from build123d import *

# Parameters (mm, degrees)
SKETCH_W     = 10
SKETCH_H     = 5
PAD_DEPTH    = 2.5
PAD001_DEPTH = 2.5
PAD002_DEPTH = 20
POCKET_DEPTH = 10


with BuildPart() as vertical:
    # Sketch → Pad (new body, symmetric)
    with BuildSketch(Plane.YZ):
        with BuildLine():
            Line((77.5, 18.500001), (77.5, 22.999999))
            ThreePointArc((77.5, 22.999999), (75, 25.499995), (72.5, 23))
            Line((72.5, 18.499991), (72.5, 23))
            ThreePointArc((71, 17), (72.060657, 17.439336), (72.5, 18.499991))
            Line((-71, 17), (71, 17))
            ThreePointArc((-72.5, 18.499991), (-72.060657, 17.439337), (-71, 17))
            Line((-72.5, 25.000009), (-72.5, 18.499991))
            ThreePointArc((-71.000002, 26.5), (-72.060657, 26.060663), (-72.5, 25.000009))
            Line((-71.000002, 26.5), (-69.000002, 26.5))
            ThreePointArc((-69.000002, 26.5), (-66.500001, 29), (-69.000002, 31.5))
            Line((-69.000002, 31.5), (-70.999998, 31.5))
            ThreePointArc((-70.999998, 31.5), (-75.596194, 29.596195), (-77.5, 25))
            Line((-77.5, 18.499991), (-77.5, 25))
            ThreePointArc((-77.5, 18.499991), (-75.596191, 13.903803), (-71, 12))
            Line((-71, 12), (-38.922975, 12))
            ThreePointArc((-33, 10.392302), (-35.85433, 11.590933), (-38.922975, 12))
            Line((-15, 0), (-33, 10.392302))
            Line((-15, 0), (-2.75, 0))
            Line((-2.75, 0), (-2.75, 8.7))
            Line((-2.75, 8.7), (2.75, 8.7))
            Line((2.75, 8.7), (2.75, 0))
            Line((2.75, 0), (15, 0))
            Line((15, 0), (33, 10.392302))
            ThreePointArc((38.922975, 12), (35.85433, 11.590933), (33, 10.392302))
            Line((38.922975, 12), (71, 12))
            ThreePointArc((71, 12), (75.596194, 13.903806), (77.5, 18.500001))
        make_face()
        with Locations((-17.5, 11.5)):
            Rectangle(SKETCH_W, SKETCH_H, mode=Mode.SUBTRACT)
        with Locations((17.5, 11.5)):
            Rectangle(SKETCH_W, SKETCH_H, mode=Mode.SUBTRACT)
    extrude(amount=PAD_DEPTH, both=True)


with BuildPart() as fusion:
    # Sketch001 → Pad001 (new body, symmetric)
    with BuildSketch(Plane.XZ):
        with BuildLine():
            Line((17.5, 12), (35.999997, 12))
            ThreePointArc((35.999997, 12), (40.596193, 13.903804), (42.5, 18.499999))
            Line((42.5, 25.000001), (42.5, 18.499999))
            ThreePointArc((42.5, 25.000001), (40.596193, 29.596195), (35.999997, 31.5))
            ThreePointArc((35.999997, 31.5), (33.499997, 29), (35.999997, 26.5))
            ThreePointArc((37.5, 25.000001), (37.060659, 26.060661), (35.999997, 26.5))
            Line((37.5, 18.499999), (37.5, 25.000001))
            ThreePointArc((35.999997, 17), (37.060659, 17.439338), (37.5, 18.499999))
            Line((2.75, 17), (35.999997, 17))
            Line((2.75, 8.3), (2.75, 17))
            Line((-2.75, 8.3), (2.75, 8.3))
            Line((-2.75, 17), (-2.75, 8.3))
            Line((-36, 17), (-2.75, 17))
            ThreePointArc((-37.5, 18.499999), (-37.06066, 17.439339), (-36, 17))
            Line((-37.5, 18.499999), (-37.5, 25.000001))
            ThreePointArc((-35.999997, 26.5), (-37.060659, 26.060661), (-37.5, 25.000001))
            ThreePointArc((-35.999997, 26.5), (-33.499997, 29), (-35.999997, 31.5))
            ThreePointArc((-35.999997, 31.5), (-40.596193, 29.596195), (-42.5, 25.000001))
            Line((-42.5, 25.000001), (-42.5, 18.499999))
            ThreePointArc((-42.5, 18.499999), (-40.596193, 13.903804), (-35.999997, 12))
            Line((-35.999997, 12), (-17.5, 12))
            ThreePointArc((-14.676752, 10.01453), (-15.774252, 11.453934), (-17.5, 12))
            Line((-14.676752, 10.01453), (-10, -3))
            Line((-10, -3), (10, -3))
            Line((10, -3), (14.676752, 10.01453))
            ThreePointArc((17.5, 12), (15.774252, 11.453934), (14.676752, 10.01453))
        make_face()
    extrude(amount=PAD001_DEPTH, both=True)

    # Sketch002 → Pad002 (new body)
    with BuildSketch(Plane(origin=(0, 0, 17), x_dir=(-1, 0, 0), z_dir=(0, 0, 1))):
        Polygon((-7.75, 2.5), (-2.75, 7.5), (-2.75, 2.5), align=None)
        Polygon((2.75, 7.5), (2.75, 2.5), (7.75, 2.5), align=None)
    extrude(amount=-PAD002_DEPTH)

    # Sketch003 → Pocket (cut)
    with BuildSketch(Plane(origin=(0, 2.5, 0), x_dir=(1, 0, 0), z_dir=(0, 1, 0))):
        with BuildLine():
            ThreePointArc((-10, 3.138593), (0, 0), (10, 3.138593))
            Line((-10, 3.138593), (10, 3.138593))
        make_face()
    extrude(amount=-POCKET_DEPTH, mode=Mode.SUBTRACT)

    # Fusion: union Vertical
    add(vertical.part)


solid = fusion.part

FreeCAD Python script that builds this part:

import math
import FreeCAD as App
import Part
import Sketcher

V = App.Vector
Q = App.Units.Quantity


def add_polygon(sketch, points):
    """Adds a closed chain of lines whose ends are joined by coincident constraints."""
    first, n = sketch.GeometryCount, len(points)
    for a, b in zip(points, points[1:] + points[:1]):
        sketch.addGeometry(Part.LineSegment(App.Vector(*a, 0), App.Vector(*b, 0)), False)
    for i in range(n):
        sketch.addConstraint(Sketcher.Constraint("Coincident", first + i, 2, first + (i + 1) % n, 1))

doc = App.newDocument("Part")
params = doc.addObject("Spreadsheet::Sheet", "Params")
for row, (alias, value) in enumerate([
    ("sketch1_radius", "2.5 mm"),
    ("sketch1_radius2", "1.499999 mm"),
    ("sketch1_width", "142 mm"),
    ("sketch1_width2", "2 mm"),
    ("sketch1_width3", "10 mm"),
    ("pad1_length", "5 mm"),
    ("sketch2_radius", "3.000002 mm"),
    ("sketch2_radius2", "6.499999 mm"),
    ("sketch2_radius3", "2.5 mm"),
    ("sketch2_width", "20 mm"),
    ("sketch2_width2", "5.5 mm"),
    ("pad2_length", "5 mm"),
    ("sketch3_width", "5 mm"),
    ("pad3_length", "20 mm"),
    ("sketch4_radius", "17.500002 mm"),
    ("sketch4_width", "20 mm"),
    ("pocket1_length", "10 mm"),
], start=1):
    params.set(f"A{row}", alias)
    params.set(f"B{row}", "=" + value)
    params.setAlias(f"B{row}", alias)

body = doc.addObject("PartDesign::Body", "Body")

# Sketch on YZ plane
sketch1 = body.newObject("Sketcher::SketchObject", "Sketch")
sketch1.AttachmentSupport = (doc.getObject("YZ_Plane"), [""])
sketch1.MapMode = "FlatFace"
sketch1.addGeometry(Part.LineSegment(V(77.5, 18.5, 0), V(77.5, 23, 0)), False)  # 0
sketch1.addGeometry(Part.ArcOfCircle(Part.Circle(V(75, 23, 0), V(0, 0, 1), 2.5), math.radians(0), math.radians(180)), False)  # 1
sketch1.addGeometry(Part.LineSegment(V(72.5, 23, 0), V(72.5, 18.5, 0)), False)  # 2
sketch1.addGeometry(Part.ArcOfCircle(Part.Circle(V(71, 18.5, 0), V(0, 0, 1), 1.5), math.radians(-90), math.radians(0)), False)  # 3
sketch1.addGeometry(Part.LineSegment(V(71, 17, 0), V(-71, 17, 0)), False)  # 4
sketch1.addGeometry(Part.ArcOfCircle(Part.Circle(V(-71, 18.5, 0), V(0, 0, 1), 1.5), math.radians(-180), math.radians(-90)), False)  # 5
sketch1.addGeometry(Part.LineSegment(V(-72.5, 18.5, 0), V(-72.5, 25, 0)), False)  # 6
sketch1.addGeometry(Part.ArcOfCircle(Part.Circle(V(-71, 25, 0), V(0, 0, 1), 1.5), math.radians(90), math.radians(180)), False)  # 7
sketch1.addGeometry(Part.LineSegment(V(-71, 26.5, 0), V(-69, 26.5, 0)), False)  # 8
sketch1.addGeometry(Part.ArcOfCircle(Part.Circle(V(-69, 29, 0), V(0, 0, 1), 2.5), math.radians(-90), math.radians(90)), False)  # 9
sketch1.addGeometry(Part.LineSegment(V(-69, 31.5, 0), V(-71, 31.5, 0)), False)  # 10
sketch1.addGeometry(Part.ArcOfCircle(Part.Circle(V(-71, 25, 0), V(0, 0, 1), 6.5), math.radians(90), math.radians(180)), False)  # 11
sketch1.addGeometry(Part.LineSegment(V(-77.5, 25, 0), V(-77.5, 18.5, 0)), False)  # 12
sketch1.addGeometry(Part.ArcOfCircle(Part.Circle(V(-71, 18.5, 0), V(0, 0, 1), 6.5), math.radians(-180), math.radians(-90)), False)  # 13
sketch1.addGeometry(Part.LineSegment(V(-71, 12, 0), V(-38.9, 12, 0)), False)  # 14
sketch1.addGeometry(Part.ArcOfCircle(Part.Circle(V(-38.9, 0.3, 0), V(0, 0, 1), 11.7), math.radians(60), math.radians(90)), False)  # 15
sketch1.addGeometry(Part.LineSegment(V(-33, 10.4, 0), V(-15, 0, 0)), False)  # 16
sketch1.addGeometry(Part.LineSegment(V(-15, 0, 0), V(-2.8, 0, 0)), False)  # 17
sketch1.addGeometry(Part.LineSegment(V(-2.8, 0, 0), V(-2.8, 8.7, 0)), False)  # 18
sketch1.addGeometry(Part.LineSegment(V(-2.8, 8.7, 0), V(2.8, 8.7, 0)), False)  # 19
sketch1.addGeometry(Part.LineSegment(V(2.8, 8.7, 0), V(2.8, 0, 0)), False)  # 20
sketch1.addGeometry(Part.LineSegment(V(2.8, 0, 0), V(15, 0, 0)), False)  # 21
sketch1.addGeometry(Part.LineSegment(V(15, 0, 0), V(33, 10.4, 0)), False)  # 22
sketch1.addGeometry(Part.ArcOfCircle(Part.Circle(V(38.9, 0.3, 0), V(0, 0, 1), 11.7), math.radians(90), math.radians(120)), False)  # 23
sketch1.addGeometry(Part.LineSegment(V(38.9, 12, 0), V(71, 12, 0)), False)  # 24
sketch1.addGeometry(Part.ArcOfCircle(Part.Circle(V(71, 18.5, 0), V(0, 0, 1), 6.5), math.radians(-90), math.radians(0)), False)  # 25
add_polygon(sketch1, [(-12.5, 9), (-22.5, 9), (-22.5, 14), (-12.5, 14)])  # lines 26-29
add_polygon(sketch1, [(22.5, 9), (12.5, 9), (12.5, 14), (22.5, 14)])  # lines 30-33
sketch1.addConstraint([
    Sketcher.Constraint("Tangent", 0, 2, 1, 1),
    Sketcher.Constraint("Coincident", 1, 2, 2, 1),
    Sketcher.Constraint("Coincident", 2, 2, 3, 2),
    Sketcher.Constraint("Tangent", 3, 1, 4, 1),
    Sketcher.Constraint("Tangent", 4, 2, 5, 2),
    Sketcher.Constraint("Coincident", 5, 1, 6, 1),
    Sketcher.Constraint("Coincident", 6, 2, 7, 2),
    Sketcher.Constraint("Tangent", 7, 1, 8, 1),
    Sketcher.Constraint("Tangent", 8, 2, 9, 1),
    Sketcher.Constraint("Tangent", 9, 2, 10, 1),
    Sketcher.Constraint("Tangent", 10, 2, 11, 1),
    Sketcher.Constraint("Tangent", 11, 2, 12, 1),
    Sketcher.Constraint("Tangent", 12, 2, 13, 1),
    Sketcher.Constraint("Tangent", 13, 2, 14, 1),
    Sketcher.Constraint("Tangent", 14, 2, 15, 2),
    Sketcher.Constraint("Coincident", 15, 1, 16, 1),
    Sketcher.Constraint("Coincident", 16, 2, 17, 1),
    Sketcher.Constraint("Coincident", 17, 2, 18, 1),
    Sketcher.Constraint("Coincident", 18, 2, 19, 1),
    Sketcher.Constraint("Coincident", 19, 2, 20, 1),
    Sketcher.Constraint("Coincident", 20, 2, 21, 1),
    Sketcher.Constraint("Coincident", 21, 2, 22, 1),
    Sketcher.Constraint("Coincident", 22, 2, 23, 2),
    Sketcher.Constraint("Tangent", 23, 1, 24, 1),
    Sketcher.Constraint("Tangent", 24, 2, 25, 1),
    Sketcher.Constraint("Tangent", 25, 2, 0, 1),
    Sketcher.Constraint("Vertical", 0),
    Sketcher.Constraint("Vertical", 2),
    Sketcher.Constraint("Horizontal", 4),
    Sketcher.Constraint("Vertical", 6),
    Sketcher.Constraint("Horizontal", 8),
    Sketcher.Constraint("Horizontal", 10),
    Sketcher.Constraint("Vertical", 12),
    Sketcher.Constraint("Horizontal", 14),
    Sketcher.Constraint("Horizontal", 17),
    Sketcher.Constraint("Vertical", 18),
    Sketcher.Constraint("Horizontal", 19),
    Sketcher.Constraint("Vertical", 20),
    Sketcher.Constraint("Horizontal", 21),
    Sketcher.Constraint("Horizontal", 24),
    Sketcher.Constraint("Horizontal", 26),
    Sketcher.Constraint("Vertical", 27),
    Sketcher.Constraint("Horizontal", 28),
    Sketcher.Constraint("Vertical", 29),
    Sketcher.Constraint("Horizontal", 30),
    Sketcher.Constraint("Vertical", 31),
    Sketcher.Constraint("Horizontal", 32),
    Sketcher.Constraint("Vertical", 33),
    Sketcher.Constraint("Coincident", 11, 3, 7, 3),
    Sketcher.Constraint("Coincident", 13, 3, 5, 3),
    Sketcher.Constraint("Coincident", 25, 3, 3, 3),
    Sketcher.Constraint("Equal", 3, 5),
    Sketcher.Constraint("Equal", 5, 7),
    Sketcher.Constraint("Equal", 1, 9),
    Sketcher.Constraint("Equal", 15, 23),
    Sketcher.Constraint("Symmetric", 17, 2, 20, 2, -1, 1),
    Sketcher.Constraint("Symmetric", 2, 2, 5, 1, -2),
    Sketcher.Constraint("Symmetric", 16, 2, 21, 2, -2),
    Sketcher.Constraint("Symmetric", 15, 1, 22, 2, -2),
    Sketcher.Constraint("Symmetric", 29, 2, 30, 2, -2),
    Sketcher.Constraint("Symmetric", 27, 2, 32, 2, -2),
    Sketcher.Constraint("Horizontal", 0, 2, 1, 2),
    Sketcher.Constraint("Horizontal", 5, 1, 12, 2),
    Sketcher.Constraint("Radius", 1, Q("2.5 mm")),
    Sketcher.Constraint("Radius", 3, Q("1.499999 mm")),
    Sketcher.Constraint("DistanceX", 4, 2, 4, 1, Q("142 mm")),
    Sketcher.Constraint("DistanceX", 8, 1, 8, 2, Q("2 mm")),
    Sketcher.Constraint("DistanceX", 26, 2, 26, 1, Q("10 mm")),
    Sketcher.Constraint("DistanceY", 27, 1, 27, 2, Q("5 mm")),
    Sketcher.Constraint("Angle", 16, Q("-29.999993 deg")),
    Sketcher.Constraint("DistanceX", 19, 1, 19, 2, Q("5.5 mm")),
    Sketcher.Constraint("DistanceY", 18, 1, 18, 2, Q("8.7 mm")),
    Sketcher.Constraint("DistanceY", -1, 1, 7, 3, Q("24.999999 mm")),
    Sketcher.Constraint("DistanceY", -1, 1, 0, 2, Q("22.999999 mm")),
    Sketcher.Constraint("DistanceY", -1, 1, 3, 1, Q("17 mm")),
    Sketcher.Constraint("DistanceX", 15, 1, -1, 1, Q("33 mm")),
    Sketcher.Constraint("DistanceX", 16, 2, -1, 1, Q("15 mm")),
    Sketcher.Constraint("DistanceY", -1, 1, 26, 2, Q("9 mm")),
    Sketcher.Constraint("DistanceX", 26, 2, -1, 1, Q("22.5 mm")),
    Sketcher.Constraint("Radius", 15, Q("11.71437 mm")),
    Sketcher.Constraint("DistanceY", 6, 1, 6, 2, Q("6.500018 mm")),
])
sketch1.setExpression("Constraints[71]", "Params.sketch1_radius")
sketch1.setExpression("Constraints[72]", "Params.sketch1_radius2")
sketch1.setExpression("Constraints[73]", "Params.sketch1_width")
sketch1.setExpression("Constraints[74]", "Params.sketch1_width2")
sketch1.setExpression("Constraints[75]", "Params.sketch1_width3")
pad1 = body.newObject("PartDesign::Pad", "Pad")
pad1.Profile = sketch1
pad1.setExpression("Length", "Params.pad1_length")
pad1.Midplane = True
body2 = doc.addObject("PartDesign::Body", "Body001")
body2.AllowCompound = True

# Sketch on XZ plane
sketch2 = body2.newObject("Sketcher::SketchObject", "Sketch001")
sketch2.AttachmentSupport = (doc.getObject("XZ_Plane001"), [""])
sketch2.MapMode = "FlatFace"
sketch2.addGeometry([
    Part.LineSegment(V(17.5, 12, 0), V(36, 12, 0)),  # 0
    Part.ArcOfCircle(Part.Circle(V(36, 18.5, 0), V(0, 0, 1), 6.5), math.radians(-90), math.radians(0)),  # 1
    Part.LineSegment(V(42.5, 18.5, 0), V(42.5, 25, 0)),  # 2
    Part.ArcOfCircle(Part.Circle(V(36, 25, 0), V(0, 0, 1), 6.5), math.radians(0), math.radians(90)),  # 3
    Part.ArcOfCircle(Part.Circle(V(36, 29, 0), V(0, 0, 1), 2.5), math.radians(90), math.radians(270)),  # 4
    Part.ArcOfCircle(Part.Circle(V(36, 25, 0), V(0, 0, 1), 1.5), math.radians(0), math.radians(90)),  # 5
    Part.LineSegment(V(37.5, 25, 0), V(37.5, 18.5, 0)),  # 6
    Part.ArcOfCircle(Part.Circle(V(36, 18.5, 0), V(0, 0, 1), 1.5), math.radians(-90), math.radians(0)),  # 7
    Part.LineSegment(V(36, 17, 0), V(2.8, 17, 0)),  # 8
    Part.LineSegment(V(2.8, 17, 0), V(2.8, 8.3, 0)),  # 9
    Part.LineSegment(V(2.8, 8.3, 0), V(-2.8, 8.3, 0)),  # 10
    Part.LineSegment(V(-2.8, 8.3, 0), V(-2.8, 17, 0)),  # 11
    Part.LineSegment(V(-2.8, 17, 0), V(-36, 17, 0)),  # 12
    Part.ArcOfCircle(Part.Circle(V(-36, 18.5, 0), V(0, 0, 1), 1.5), math.radians(180), math.radians(270)),  # 13
    Part.LineSegment(V(-37.5, 18.5, 0), V(-37.5, 25, 0)),  # 14
    Part.ArcOfCircle(Part.Circle(V(-36, 25, 0), V(0, 0, 1), 1.5), math.radians(90), math.radians(180)),  # 15
    Part.ArcOfCircle(Part.Circle(V(-36, 29, 0), V(0, 0, 1), 2.5), math.radians(-90), math.radians(90)),  # 16
    Part.ArcOfCircle(Part.Circle(V(-36, 25, 0), V(0, 0, 1), 6.5), math.radians(90), math.radians(180)),  # 17
    Part.LineSegment(V(-42.5, 25, 0), V(-42.5, 18.5, 0)),  # 18
    Part.ArcOfCircle(Part.Circle(V(-36, 18.5, 0), V(0, 0, 1), 6.5), math.radians(180), math.radians(270)),  # 19
    Part.LineSegment(V(-36, 12, 0), V(-17.5, 12, 0)),  # 20
    Part.ArcOfCircle(Part.Circle(V(-17.5, 9, 0), V(0, 0, 1), 3), math.radians(20), math.radians(90)),  # 21
    Part.LineSegment(V(-14.7, 10, 0), V(-10, -3, 0)),  # 22
    Part.LineSegment(V(-10, -3, 0), V(10, -3, 0)),  # 23
    Part.LineSegment(V(10, -3, 0), V(14.7, 10, 0)),  # 24
    Part.ArcOfCircle(Part.Circle(V(17.5, 9, 0), V(0, 0, 1), 3), math.radians(90), math.radians(160)),  # 25
], False)
sketch2.addConstraint([
    Sketcher.Constraint("Tangent", 0, 2, 1, 1),
    Sketcher.Constraint("Tangent", 1, 2, 2, 1),
    Sketcher.Constraint("Tangent", 2, 2, 3, 1),
    Sketcher.Constraint("Tangent", 3, 2, 4, 1),
    Sketcher.Constraint("Tangent", 4, 2, 5, 2),
    Sketcher.Constraint("Tangent", 5, 1, 6, 1),
    Sketcher.Constraint("Tangent", 6, 2, 7, 2),
    Sketcher.Constraint("Coincident", 7, 1, 8, 1),
    Sketcher.Constraint("Coincident", 8, 2, 9, 1),
    Sketcher.Constraint("Coincident", 9, 2, 10, 1),
    Sketcher.Constraint("Coincident", 10, 2, 11, 1),
    Sketcher.Constraint("Coincident", 11, 2, 12, 1),
    Sketcher.Constraint("Tangent", 12, 2, 13, 2),
    Sketcher.Constraint("Tangent", 13, 1, 14, 1),
    Sketcher.Constraint("Tangent", 14, 2, 15, 2),
    Sketcher.Constraint("Tangent", 15, 1, 16, 1),
    Sketcher.Constraint("Tangent", 16, 2, 17, 1),
    Sketcher.Constraint("Tangent", 17, 2, 18, 1),
    Sketcher.Constraint("Tangent", 18, 2, 19, 1),
    Sketcher.Constraint("Tangent", 19, 2, 20, 1),
    Sketcher.Constraint("Tangent", 20, 2, 21, 2),
    Sketcher.Constraint("Tangent", 21, 1, 22, 1),
    Sketcher.Constraint("Coincident", 22, 2, 23, 1),
    Sketcher.Constraint("Coincident", 23, 2, 24, 1),
    Sketcher.Constraint("Tangent", 24, 2, 25, 2),
    Sketcher.Constraint("Tangent", 25, 1, 0, 1),
    Sketcher.Constraint("Horizontal", 0),
    Sketcher.Constraint("Vertical", 2),
    Sketcher.Constraint("Vertical", 6),
    Sketcher.Constraint("Horizontal", 8),
    Sketcher.Constraint("Vertical", 9),
    Sketcher.Constraint("Horizontal", 10),
    Sketcher.Constraint("Vertical", 11),
    Sketcher.Constraint("Horizontal", 12),
    Sketcher.Constraint("Vertical", 14),
    Sketcher.Constraint("Vertical", 18),
    Sketcher.Constraint("Horizontal", 20),
    Sketcher.Constraint("Horizontal", 23),
    Sketcher.Constraint("Coincident", 5, 3, 3, 3),
    Sketcher.Constraint("Coincident", 7, 3, 1, 3),
    Sketcher.Constraint("Coincident", 17, 3, 15, 3),
    Sketcher.Constraint("Coincident", 19, 3, 13, 3),
    Sketcher.Constraint("Equal", 1, 3),
    Sketcher.Constraint("Equal", 7, 13),
    Sketcher.Constraint("Equal", 13, 15),
    Sketcher.Constraint("Equal", 4, 16),
    Sketcher.Constraint("Equal", 21, 25),
    Sketcher.Constraint("Symmetric", 1, 3, 13, 3, -2),
    Sketcher.Constraint("Symmetric", 4, 3, 16, 3, -2),
    Sketcher.Constraint("Symmetric", 21, 1, 24, 2, -2),
    Sketcher.Constraint("Vertical", 4, 3, 0, 2),
    Sketcher.Constraint("Vertical", 4, 2, 7, 1),
    Sketcher.Constraint("Radius", 21, Q("3.000002 mm")),
    Sketcher.Constraint("Radius", 1, Q("6.499999 mm")),
    Sketcher.Constraint("Radius", 4, Q("2.5 mm")),
    Sketcher.Constraint("DistanceX", 23, 1, 23, 2, Q("20 mm")),
    Sketcher.Constraint("DistanceX", 10, 2, 10, 1, Q("5.5 mm")),
    Sketcher.Constraint("DistanceY", 9, 2, 9, 1, Q("8.7 mm")),
    Sketcher.Constraint("DistanceX", -1, 1, 1, 3, Q("36.000001 mm")),
    Sketcher.Constraint("DistanceY", -1, 1, 3, 3, Q("25 mm")),
    Sketcher.Constraint("DistanceY", -1, 1, 21, 3, Q("8.999999 mm")),
    Sketcher.Constraint("DistanceY", 22, 2, -1, 1, Q("3 mm")),
    Sketcher.Constraint("DistanceX", 12, 2, 12, 1, Q("33.25 mm")),
    Sketcher.Constraint("DistanceX", 21, 3, -1, 1, Q("17.500001 mm")),
])
sketch2.setExpression("Constraints[52]", "Params.sketch2_radius")
sketch2.setExpression("Constraints[53]", "Params.sketch2_radius2")
sketch2.setExpression("Constraints[54]", "Params.sketch2_radius3")
sketch2.setExpression("Constraints[55]", "Params.sketch2_width")
sketch2.setExpression("Constraints[56]", "Params.sketch2_width2")
pad2 = body2.newObject("PartDesign::Pad", "Pad001")
pad2.Profile = sketch2
pad2.setExpression("Length", "Params.pad2_length")
pad2.Midplane = True

# Sketch on XY plane
sketch3 = body2.newObject("Sketcher::SketchObject", "Sketch002")
sketch3.AttachmentSupport = (doc.getObject("XY_Plane001"), [""])
sketch3.MapMode = "FlatFace"
sketch3.AttachmentOffset = App.Placement(V(0, 0, 17), App.Rotation())
add_polygon(sketch3, [(3, -8), (8, -2), (3, -2)])  # lines 0-2
add_polygon(sketch3, [(-3, -8), (-3, -2), (-8, -2)])  # lines 3-5
sketch3.addConstraint([
    Sketcher.Constraint("Horizontal", 1),
    Sketcher.Constraint("Vertical", 2),
    Sketcher.Constraint("Vertical", 3),
    Sketcher.Constraint("Horizontal", 4),
    Sketcher.Constraint("Symmetric", 1, 2, 3, 2, -2),
    Sketcher.Constraint("Perpendicular", 0, 5),
    Sketcher.Constraint("Horizontal", 2, 2, 5, 2),
    Sketcher.Constraint("Equal", 1, 4),
    Sketcher.Constraint("DistanceX", 1, 2, 1, 1, Q("5 mm")),
    Sketcher.Constraint("DistanceY", 0, 2, -1, 1, Q("2.5 mm")),
    Sketcher.Constraint("DistanceX", 3, 2, 1, 2, Q("5.5 mm")),
])
sketch3.setExpression("Constraints[14]", "Params.sketch3_width")
pad3 = body2.newObject("PartDesign::Pad", "Pad002")
pad3.Profile = sketch3
pad3.setExpression("Length", "Params.pad3_length")
pad3.Reversed = True

# Sketch on XZ plane
sketch4 = body2.newObject("Sketcher::SketchObject", "Sketch003")
sketch4.AttachmentSupport = (doc.getObject("XZ_Plane001"), [""])
sketch4.MapMode = "FlatFace"
sketch4.AttachmentOffset = App.Placement(V(0, 0, -2.5), App.Rotation())
sketch4.addGeometry([
    Part.ArcOfCircle(Part.Circle(V(0, -18, 0), V(0, 0, 1), 18), math.radians(55), math.radians(125)),
    Part.LineSegment(V(10, -3, 0), V(-10, -3, 0)),
], False)
sketch4.addConstraint([
    Sketcher.Constraint("Coincident", 0, 1, 1, 1),
    Sketcher.Constraint("Coincident", 1, 2, 0, 2),
    Sketcher.Constraint("Horizontal", 1),
    Sketcher.Constraint("PointOnObject", 0, 3, -2),
    Sketcher.Constraint("Radius", 0, Q("17.500002 mm")),
    Sketcher.Constraint("DistanceX", 1, 2, 1, 1, Q("20 mm")),
    Sketcher.Constraint("DistanceY", 0, 3, -1, 1, Q("17.500002 mm")),
])
sketch4.setExpression("Constraints[4]", "Params.sketch4_radius")
sketch4.setExpression("Constraints[5]", "Params.sketch4_width")
pocket1 = body2.newObject("PartDesign::Pocket", "Pocket")
pocket1.Profile = sketch4
pocket1.setExpression("Length", "Params.pocket1_length")
pocket1.Reversed = True
doc.recompute()

boolean = body2.newObject("PartDesign::Boolean", "Boolean")
boolean.Type = "Fuse"
boolean.addObjects([body])

doc.recompute()
